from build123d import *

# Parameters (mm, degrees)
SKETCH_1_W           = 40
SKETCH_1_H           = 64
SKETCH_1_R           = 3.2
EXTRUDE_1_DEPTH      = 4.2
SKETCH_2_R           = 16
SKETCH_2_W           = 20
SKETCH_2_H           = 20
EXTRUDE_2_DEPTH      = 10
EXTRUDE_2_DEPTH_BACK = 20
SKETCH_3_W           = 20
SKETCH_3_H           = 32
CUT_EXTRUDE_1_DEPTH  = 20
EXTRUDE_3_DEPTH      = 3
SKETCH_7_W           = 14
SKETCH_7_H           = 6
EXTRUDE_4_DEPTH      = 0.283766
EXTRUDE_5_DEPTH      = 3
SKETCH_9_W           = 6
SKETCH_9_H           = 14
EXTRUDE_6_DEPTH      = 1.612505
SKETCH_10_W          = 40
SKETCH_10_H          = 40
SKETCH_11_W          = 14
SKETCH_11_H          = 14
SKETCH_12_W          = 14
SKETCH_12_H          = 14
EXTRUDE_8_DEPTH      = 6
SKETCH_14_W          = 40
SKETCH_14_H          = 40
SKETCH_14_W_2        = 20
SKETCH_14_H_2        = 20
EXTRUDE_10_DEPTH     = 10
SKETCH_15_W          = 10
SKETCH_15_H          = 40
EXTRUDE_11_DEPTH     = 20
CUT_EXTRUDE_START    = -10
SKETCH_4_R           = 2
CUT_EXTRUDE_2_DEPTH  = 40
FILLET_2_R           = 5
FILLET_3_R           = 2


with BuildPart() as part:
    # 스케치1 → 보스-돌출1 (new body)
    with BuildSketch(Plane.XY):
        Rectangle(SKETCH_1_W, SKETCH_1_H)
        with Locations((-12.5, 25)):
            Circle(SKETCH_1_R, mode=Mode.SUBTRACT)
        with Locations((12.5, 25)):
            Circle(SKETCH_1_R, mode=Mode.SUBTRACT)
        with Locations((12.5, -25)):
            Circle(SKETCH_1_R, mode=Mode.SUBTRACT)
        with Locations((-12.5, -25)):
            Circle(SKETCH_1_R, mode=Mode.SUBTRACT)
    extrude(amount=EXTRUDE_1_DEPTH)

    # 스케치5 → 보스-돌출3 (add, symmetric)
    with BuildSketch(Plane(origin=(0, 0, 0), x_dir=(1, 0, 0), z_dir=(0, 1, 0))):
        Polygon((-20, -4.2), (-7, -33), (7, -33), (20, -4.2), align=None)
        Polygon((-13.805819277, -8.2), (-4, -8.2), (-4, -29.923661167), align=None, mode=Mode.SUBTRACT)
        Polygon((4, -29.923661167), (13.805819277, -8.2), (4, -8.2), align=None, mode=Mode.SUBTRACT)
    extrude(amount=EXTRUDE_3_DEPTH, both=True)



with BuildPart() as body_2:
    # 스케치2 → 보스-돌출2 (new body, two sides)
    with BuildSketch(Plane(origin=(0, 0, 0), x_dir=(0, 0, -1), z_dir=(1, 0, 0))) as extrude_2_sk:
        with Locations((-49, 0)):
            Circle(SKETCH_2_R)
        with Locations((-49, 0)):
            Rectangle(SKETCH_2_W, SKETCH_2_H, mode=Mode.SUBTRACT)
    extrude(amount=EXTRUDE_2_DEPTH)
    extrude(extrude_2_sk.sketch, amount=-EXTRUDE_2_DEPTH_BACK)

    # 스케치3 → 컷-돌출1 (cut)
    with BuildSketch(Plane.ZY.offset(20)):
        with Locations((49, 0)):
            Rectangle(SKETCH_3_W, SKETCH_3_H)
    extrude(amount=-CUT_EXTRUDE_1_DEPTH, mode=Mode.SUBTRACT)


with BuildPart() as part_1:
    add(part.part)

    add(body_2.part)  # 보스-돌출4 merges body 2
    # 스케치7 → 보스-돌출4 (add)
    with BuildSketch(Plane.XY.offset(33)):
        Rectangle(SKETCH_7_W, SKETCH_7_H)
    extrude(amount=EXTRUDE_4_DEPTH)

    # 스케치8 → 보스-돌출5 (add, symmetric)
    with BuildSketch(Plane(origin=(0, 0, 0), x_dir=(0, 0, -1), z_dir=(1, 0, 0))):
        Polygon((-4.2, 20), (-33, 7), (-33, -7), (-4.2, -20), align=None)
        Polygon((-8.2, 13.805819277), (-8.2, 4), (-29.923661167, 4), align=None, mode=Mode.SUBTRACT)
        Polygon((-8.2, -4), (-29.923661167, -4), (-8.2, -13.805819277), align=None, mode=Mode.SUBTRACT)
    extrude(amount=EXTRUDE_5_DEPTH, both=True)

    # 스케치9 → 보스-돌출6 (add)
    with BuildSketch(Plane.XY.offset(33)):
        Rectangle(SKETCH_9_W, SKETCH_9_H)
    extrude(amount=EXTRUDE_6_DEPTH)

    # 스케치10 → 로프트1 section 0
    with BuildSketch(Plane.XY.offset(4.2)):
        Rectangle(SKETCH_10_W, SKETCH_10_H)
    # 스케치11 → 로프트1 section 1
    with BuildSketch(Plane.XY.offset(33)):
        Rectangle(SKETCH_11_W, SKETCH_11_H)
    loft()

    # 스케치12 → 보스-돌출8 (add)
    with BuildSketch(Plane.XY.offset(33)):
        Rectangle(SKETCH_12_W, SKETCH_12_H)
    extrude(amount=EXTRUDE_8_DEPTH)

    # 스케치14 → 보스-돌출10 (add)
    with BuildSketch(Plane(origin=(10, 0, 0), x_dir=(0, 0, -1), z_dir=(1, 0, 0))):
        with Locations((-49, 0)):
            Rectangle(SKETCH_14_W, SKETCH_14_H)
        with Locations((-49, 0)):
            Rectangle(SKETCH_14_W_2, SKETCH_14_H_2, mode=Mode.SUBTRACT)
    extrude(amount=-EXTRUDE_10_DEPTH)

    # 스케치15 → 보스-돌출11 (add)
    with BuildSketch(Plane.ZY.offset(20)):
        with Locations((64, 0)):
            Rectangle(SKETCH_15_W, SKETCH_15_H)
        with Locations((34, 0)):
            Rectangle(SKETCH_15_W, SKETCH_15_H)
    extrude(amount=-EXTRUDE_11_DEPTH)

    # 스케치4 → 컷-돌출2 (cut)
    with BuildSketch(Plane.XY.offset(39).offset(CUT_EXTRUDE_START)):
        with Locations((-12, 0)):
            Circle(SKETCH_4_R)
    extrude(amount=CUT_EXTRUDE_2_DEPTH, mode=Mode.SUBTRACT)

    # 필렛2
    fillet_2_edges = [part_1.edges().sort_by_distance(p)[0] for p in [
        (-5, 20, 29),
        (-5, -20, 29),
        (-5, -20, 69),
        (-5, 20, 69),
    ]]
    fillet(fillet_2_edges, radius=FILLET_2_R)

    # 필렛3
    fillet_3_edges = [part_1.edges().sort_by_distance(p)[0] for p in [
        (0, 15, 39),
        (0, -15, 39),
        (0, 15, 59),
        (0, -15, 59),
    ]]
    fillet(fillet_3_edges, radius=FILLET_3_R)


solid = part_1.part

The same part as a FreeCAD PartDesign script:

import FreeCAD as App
import Part
import Sketcher
from FreeCAD import Vector


def edges_at(feature, points):
    """Names of the edges that pass closest to the given points."""
    edges = feature.Shape.Edges
    near = lambda p: min(range(len(edges)), key=lambda i: edges[i].distToShape(Part.Vertex(*p))[0])
    return sorted({f"Edge{near(p) + 1}" for p in points})


def add_polygon(sketch, points):
    """Adds a closed chain of lines whose ends are joined by coincident constraints."""
    first, n = sketch.GeometryCount, len(points)
    for a, b in zip(points, points[1:] + points[:1]):
        sketch.addGeometry(Part.LineSegment(App.Vector(*a, 0), App.Vector(*b, 0)), False)
    for i in range(n):
        sketch.addConstraint(Sketcher.Constraint("Coincident", first + i, 2, first + (i + 1) % n, 1))

doc = App.newDocument("Part")
body = doc.addObject("PartDesign::Body", "Body")

# Sketch on XY plane
sketch1 = body.newObject("Sketcher::SketchObject", "Sketch")
sketch1.AttachmentSupport = (doc.getObject("XY_Plane"), [""])
sketch1.MapMode = "FlatFace"
add_polygon(sketch1, [(-20, 32), (-20, -32), (20, -32), (20, 32)])  # lines 0-3
sketch1.addGeometry(Part.Circle(Vector(-12.5, -25, 0), Vector(0, 0, 1), 3.2), False)  # 4
sketch1.addGeometry(Part.Circle(Vector(12.5, -25, 0), Vector(0, 0, 1), 3.2), False)  # 5
sketch1.addGeometry(Part.Circle(Vector(-12.5, 25, 0), Vector(0, 0, 1), 3.2), False)  # 6
sketch1.addGeometry(Part.Circle(Vector(12.5, 25, 0), Vector(0, 0, 1), 3.2), False)  # 7
sketch1.addConstraint([
    Sketcher.Constraint("Vertical", 0),
    Sketcher.Constraint("Horizontal", 1),
    Sketcher.Constraint("Vertical", 2),
    Sketcher.Constraint("Horizontal", 3),
    Sketcher.Constraint("Equal", 4, 5),
    Sketcher.Constraint("Equal", 5, 6),
    Sketcher.Constraint("Equal", 6, 7),
    Sketcher.Constraint("Symmetric", 5, 3, 6, 3, -1, 1),
    Sketcher.Constraint("Symmetric", 4, 3, 7, 3, -1, 1),
    Sketcher.Constraint("Symmetric", 0, 2, 2, 2, -1, 1),
    Sketcher.Constraint("Symmetric", 4, 3, 5, 3, -2),
    Sketcher.Constraint("Diameter", 4, 6.4),
    Sketcher.Constraint("DistanceX", 1, 1, 1, 2, 40.0),
    Sketcher.Constraint("DistanceY", 0, 2, 0, 1, 64.0),
    Sketcher.Constraint("DistanceY", 4, 3, -1, 1, 25.0),
    Sketcher.Constraint("DistanceX", 4, 3, 5, 3, 25.0),
])
pad1 = body.newObject("PartDesign::Pad", "Pad")
pad1.Profile = sketch1
pad1.Length = 4.2

# Sketch on XZ plane
sketch2 = body.newObject("Sketcher::SketchObject", "Sketch001")
sketch2.AttachmentSupport = (doc.getObject("XZ_Plane"), [""])
sketch2.MapMode = "FlatFace"
add_polygon(sketch2, [(-20, 4.2), (-7, 33), (7, 33), (20, 4.2)])  # lines 0-3
add_polygon(sketch2, [(-4, 29.923661), (-13.805819, 8.2), (-4, 8.2)])  # lines 4-6
add_polygon(sketch2, [(13.805819, 8.2), (4, 29.923661), (4, 8.2)])  # lines 7-9
sketch2.addConstraint([
    Sketcher.Constraint("Horizontal", 1),
    Sketcher.Constraint("Horizontal", 3),
    Sketcher.Constraint("Horizontal", 5),
    Sketcher.Constraint("Vertical", 6),
    Sketcher.Constraint("Vertical", 8),
    Sketcher.Constraint("Horizontal", 9),
    Sketcher.Constraint("Symmetric", 6, 2, 7, 2, -2),
    Sketcher.Constraint("Symmetric", 4, 2, 9, 2, -2),
    Sketcher.Constraint("Parallel", 0, 4),
    Sketcher.Constraint("Parallel", 2, 7),
    Sketcher.Constraint("DistanceX", 1, 1, 1, 2, 14.0),
    Sketcher.Constraint("DistanceX", 3, 2, 3, 1, 40.0),
    Sketcher.Constraint("DistanceX", 0, 2, -1, 1, 7.0),
    Sketcher.Constraint("DistanceY", -1, 1, 0, 2, 33.0),
    Sketcher.Constraint("DistanceX", 5, 2, -1, 1, 4.0),
    Sketcher.Constraint("DistanceY", 3, 2, 4, 2, 4.0),
    Sketcher.Constraint("DistanceY", -1, 1, 2, 2, 4.2),
    Sketcher.Constraint("DistanceX", 5, 1, 5, 2, 9.805819),
])
pad2 = body.newObject("PartDesign::Pad", "Pad001")
pad2.Profile = sketch2
pad2.Length = 6
pad2.Midplane = True
body2 = doc.addObject("PartDesign::Body", "Body001")

# Sketch on YZ plane
sketch3 = body2.newObject("Sketcher::SketchObject", "Sketch002")
sketch3.AttachmentSupport = (doc.getObject("YZ_Plane001"), [""])
sketch3.MapMode = "FlatFace"
sketch3.addGeometry(Part.Circle(Vector(0, 49, 0), Vector(0, 0, 1), 16), False)  # 0
add_polygon(sketch3, [(-10, 39), (-10, 59), (10, 59), (10, 39)])  # lines 1-4
sketch3.addConstraint([
    Sketcher.Constraint("Vertical", 1),
    Sketcher.Constraint("Horizontal", 2),
    Sketcher.Constraint("Vertical", 3),
    Sketcher.Constraint("Horizontal", 4),
    Sketcher.Constraint("PointOnObject", 0, 3, -2),
    Sketcher.Constraint("Equal", 4, 1),
    Sketcher.Constraint("Diameter", 0, 32.0),
    Sketcher.Constraint("DistanceX", 2, 1, 2, 2, 20.0),
    Sketcher.Constraint("DistanceY", -1, 1, 0, 3, 49.0),
    Sketcher.Constraint("DistanceX", 1, 2, -1, 1, 10.0),
    Sketcher.Constraint("DistanceY", -1, 1, 1, 2, 59.0),
])
pad3 = body2.newObject("PartDesign::Pad", "Pad002")
pad3.Profile = sketch3
pad3.Type = "TwoLengths"
pad3.Length = 10
pad3.Length2 = 20

# Sketch on YZ plane
sketch4 = body2.newObject("Sketcher::SketchObject", "Sketch003")
sketch4.AttachmentSupport = (doc.getObject("YZ_Plane001"), [""])
sketch4.MapMode = "FlatFace"
sketch4.AttachmentOffset = App.Placement(Vector(0, 0, -20), App.Rotation())
add_polygon(sketch4, [(16, 39), (-16, 39), (-16, 59), (16, 59)])  # lines 0-3
sketch4.addConstraint([
    Sketcher.Constraint("Horizontal", 0),
    Sketcher.Constraint("Vertical", 1),
    Sketcher.Constraint("Horizontal", 2),
    Sketcher.Constraint("Vertical", 3),
    Sketcher.Constraint("DistanceX", 0, 2, 0, 1, 32.0),
    Sketcher.Constraint("DistanceY", 1, 1, 1, 2, 20.0),
    Sketcher.Constraint("DistanceX", 0, 2, -1, 1, 16.0),
    Sketcher.Constraint("DistanceY", -1, 1, 0, 2, 39.0),
])
pocket1 = body2.newObject("PartDesign::Pocket", "Pocket")
pocket1.Profile = sketch4
pocket1.Length = 20
pocket1.Reversed = True
body.AllowCompound = True
doc.recompute()

boolean = body.newObject("PartDesign::Boolean", "Boolean")
boolean.Type = "Fuse"
boolean.addObjects([body2])

# Sketch on XY plane
sketch5 = body.newObject("Sketcher::SketchObject", "Sketch004")
sketch5.AttachmentSupport = (doc.getObject("XY_Plane"), [""])
sketch5.MapMode = "FlatFace"
sketch5.AttachmentOffset = App.Placement(Vector(0, 0, 33), App.Rotation())
add_polygon(sketch5, [(-7, 3), (-7, -3), (7, -3), (7, 3)])  # lines 0-3
sketch5.addConstraint([
    Sketcher.Constraint("Vertical", 0),
    Sketcher.Constraint("Horizontal", 1),
    Sketcher.Constraint("Vertical", 2),
    Sketcher.Constraint("Horizontal", 3),
    Sketcher.Constraint("Symmetric", 0, 2, 2, 2, -1, 1),
    Sketcher.Constraint("DistanceX", 1, 1, 1, 2, 14.0),
    Sketcher.Constraint("DistanceY", 0, 2, 0, 1, 6.0),
])
pad4 = body.newObject("PartDesign::Pad", "Pad003")
pad4.Profile = sketch5
pad4.Length = 0.283766

# Sketch on YZ plane
sketch6 = body.newObject("Sketcher::SketchObject", "Sketch005")
sketch6.AttachmentSupport = (doc.getObject("YZ_Plane"), [""])
sketch6.MapMode = "FlatFace"
add_polygon(sketch6, [(20, 4.2), (7, 33), (-7, 33), (-20, 4.2)])  # lines 0-3
add_polygon(sketch6, [(-4, 29.923661), (-4, 8.2), (-13.805819, 8.2)])  # lines 4-6
add_polygon(sketch6, [(4, 29.923661), (13.805819, 8.2), (4, 8.2)])  # lines 7-9
sketch6.addConstraint([
    Sketcher.Constraint("Horizontal", 1),
    Sketcher.Constraint("Horizontal", 3),
    Sketcher.Constraint("Vertical", 4),
    Sketcher.Constraint("Horizontal", 5),
    Sketcher.Constraint("Horizontal", 8),
    Sketcher.Constraint("Vertical", 9),
    Sketcher.Constraint("Symmetric", 5, 2, 7, 2, -2),
    Sketcher.Constraint("Symmetric", 6, 2, 9, 2, -2),
    Sketcher.Constraint("Parallel", 2, 6),
    Sketcher.Constraint("Parallel", 0, 7),
    Sketcher.Constraint("DistanceX", 1, 2, 1, 1, 14.0),
    Sketcher.Constraint("DistanceX", 3, 1, 3, 2, 40.0),
    Sketcher.Constraint("DistanceX", -1, 1, 0, 2, 7.0),
    Sketcher.Constraint("DistanceY", -1, 1, 0, 2, 33.0),
    Sketcher.Constraint("DistanceX", 4, 2, -1, 1, 4.0),
    Sketcher.Constraint("DistanceY", 2, 2, 4, 2, 4.0),
    Sketcher.Constraint("DistanceY", -1, 1, 2, 2, 4.2),
    Sketcher.Constraint("DistanceX", 5, 2, 5, 1, 9.805819),
])
pad5 = body.newObject("PartDesign::Pad", "Pad004")
pad5.Profile = sketch6
pad5.Length = 6
pad5.Midplane = True

# Sketch on XY plane
sketch7 = body.newObject("Sketcher::SketchObject", "Sketch006")
sketch7.AttachmentSupport = (doc.getObject("XY_Plane"), [""])
sketch7.MapMode = "FlatFace"
sketch7.AttachmentOffset = App.Placement(Vector(0, 0, 33), App.Rotation())
add_polygon(sketch7, [(-3, 7), (-3, -7), (3, -7), (3, 7)])  # lines 0-3
sketch7.addConstraint([
    Sketcher.Constraint("Vertical", 0),
    Sketcher.Constraint("Horizontal", 1),
    Sketcher.Constraint("Vertical", 2),
    Sketcher.Constraint("Horizontal", 3),
    Sketcher.Constraint("Symmetric", 0, 2, 2, 2, -1, 1),
    Sketcher.Constraint("DistanceX", 1, 1, 1, 2, 6.0),
    Sketcher.Constraint("DistanceY", 0, 2, 0, 1, 14.0),
])
pad6 = body.newObject("PartDesign::Pad", "Pad005")
pad6.Profile = sketch7
pad6.Length = 1.612505

# Sketch on XY plane
sketch8 = body.newObject("Sketcher::SketchObject", "Sketch007")
sketch8.AttachmentSupport = (doc.getObject("XY_Plane"), [""])
sketch8.MapMode = "FlatFace"
sketch8.AttachmentOffset = App.Placement(Vector(0, 0, 4.2), App.Rotation())
add_polygon(sketch8, [(-20, 20), (-20, -20), (20, -20), (20, 20)])  # lines 0-3
sketch8.addConstraint([
    Sketcher.Constraint("Vertical", 0),
    Sketcher.Constraint("Horizontal", 1),
    Sketcher.Constraint("Vertical", 2),
    Sketcher.Constraint("Horizontal", 3),
    Sketcher.Constraint("Symmetric", 0, 2, 2, 2, -1, 1),
    Sketcher.Constraint("Equal", 3, 0),
    Sketcher.Constraint("DistanceX", 1, 1, 1, 2, 40.0),
])

# Sketch on XY plane
sketch9 = body.newObject("Sketcher::SketchObject", "Sketch008")
sketch9.AttachmentSupport = (doc.getObject("XY_Plane"), [""])
sketch9.MapMode = "FlatFace"
sketch9.AttachmentOffset = App.Placement(Vector(0, 0, 33), App.Rotation())
add_polygon(sketch9, [(-7, 7), (-7, -7), (7, -7), (7, 7)])  # lines 0-3
sketch9.addConstraint([
    Sketcher.Constraint("Vertical", 0),
    Sketcher.Constraint("Horizontal", 1),
    Sketcher.Constraint("Vertical", 2),
    Sketcher.Constraint("Horizontal", 3),
    Sketcher.Constraint("Symmetric", 0, 2, 2, 2, -1, 1),
    Sketcher.Constraint("Equal", 3, 0),
    Sketcher.Constraint("DistanceX", 1, 1, 1, 2, 14.0),
])

additiveloft = body.newObject("PartDesign::AdditiveLoft", "AdditiveLoft")
additiveloft.Profile = sketch8
additiveloft.Sections = [sketch9]

# Sketch on XY plane
sketch10 = body.newObject("Sketcher::SketchObject", "Sketch009")
sketch10.AttachmentSupport = (doc.getObject("XY_Plane"), [""])
sketch10.MapMode = "FlatFace"
sketch10.AttachmentOffset = App.Placement(Vector(0, 0, 33), App.Rotation())
add_polygon(sketch10, [(-7, 7), (-7, -7), (7, -7), (7, 7)])  # lines 0-3
sketch10.addConstraint([
    Sketcher.Constraint("Vertical", 0),
    Sketcher.Constraint("Horizontal", 1),
    Sketcher.Constraint("Vertical", 2),
    Sketcher.Constraint("Horizontal", 3),
    Sketcher.Constraint("Symmetric", 0, 2, 2, 2, -1, 1),
    Sketcher.Constraint("Equal", 3, 0),
    Sketcher.Constraint("DistanceX", 1, 1, 1, 2, 14.0),
])
pad7 = body.newObject("PartDesign::Pad", "Pad006")
pad7.Profile = sketch10
pad7.Length = 6

# Sketch on YZ plane
sketch11 = body.newObject("Sketcher::SketchObject", "Sketch010")
sketch11.AttachmentSupport = (doc.getObject("YZ_Plane"), [""])
sketch11.MapMode = "FlatFace"
sketch11.AttachmentOffset = App.Placement(Vector(0, 0, 10), App.Rotation())
add_polygon(sketch11, [(20, 69), (-20, 69), (-20, 29), (20, 29)])  # lines 0-3
add_polygon(sketch11, [(-10, 39), (-10, 59), (10, 59), (10, 39)])  # lines 4-7
sketch11.addConstraint([
    Sketcher.Constraint("Horizontal", 0),
    Sketcher.Constraint("Vertical", 1),
    Sketcher.Constraint("Horizontal", 2),
    Sketcher.Constraint("Vertical", 3),
    Sketcher.Constraint("Vertical", 4),
    Sketcher.Constraint("Horizontal", 5),
    Sketcher.Constraint("Vertical", 6),
    Sketcher.Constraint("Horizontal", 7),
    Sketcher.Constraint("Equal", 2, 1),
    Sketcher.Constraint("Equal", 7, 4),
    Sketcher.Constraint("DistanceX", 0, 2, 0, 1, 40.0),
    Sketcher.Constraint("DistanceX", 5, 1, 5, 2, 20.0),
    Sketcher.Constraint("DistanceX", 0, 2, -1, 1, 20.0),
    Sketcher.Constraint("DistanceY", -1, 1, 0, 2, 69.0),
    Sketcher.Constraint("DistanceX", 4, 2, -1, 1, 10.0),
    Sketcher.Constraint("DistanceY", -1, 1, 4, 2, 59.0),
])
pad8 = body.newObject("PartDesign::Pad", "Pad007")
pad8.Profile = sketch11
pad8.Length = 10
pad8.Reversed = True

# Sketch on YZ plane
sketch12 = body.newObject("Sketcher::SketchObject", "Sketch011")
sketch12.AttachmentSupport = (doc.getObject("YZ_Plane"), [""])
sketch12.MapMode = "FlatFace"
sketch12.AttachmentOffset = App.Placement(Vector(0, 0, -20), App.Rotation())
add_polygon(sketch12, [(20, 59), (-20, 59), (-20, 69), (20, 69)])  # lines 0-3
add_polygon(sketch12, [(20, 29), (-20, 29), (-20, 39), (20, 39)])  # lines 4-7
sketch12.addConstraint([
    Sketcher.Constraint("Horizontal", 0),
    Sketcher.Constraint("Vertical", 1),
    Sketcher.Constraint("Horizontal", 2),
    Sketcher.Constraint("Vertical", 3),
    Sketcher.Constraint("Horizontal", 4),
    Sketcher.Constraint("Vertical", 5),
    Sketcher.Constraint("Horizontal", 6),
    Sketcher.Constraint("Vertical", 7),
    Sketcher.Constraint("Vertical", 1, 2, 4, 2),
    Sketcher.Constraint("Vertical", 3, 2, 6, 2),
    Sketcher.Constraint("Equal", 3, 5),
    Sketcher.Constraint("DistanceX", 0, 2, 0, 1, 40.0),
    Sketcher.Constraint("DistanceY", 1, 1, 1, 2, 10.0),
    Sketcher.Constraint("DistanceX", 0, 2, -1, 1, 20.0),
    Sketcher.Constraint("DistanceY", -1, 1, 0, 2, 59.0),
    Sketcher.Constraint("DistanceY", -1, 1, 4, 2, 29.0),
])
pad9 = body.newObject("PartDesign::Pad", "Pad008")
pad9.Profile = sketch12
pad9.Length = 20

# Sketch on XY plane
sketch13 = body.newObject("Sketcher::SketchObject", "Sketch012")
sketch13.AttachmentSupport = (doc.getObject("XY_Plane"), [""])
sketch13.MapMode = "FlatFace"
sketch13.AttachmentOffset = App.Placement(Vector(0, 0, 29), App.Rotation())
sketch13.addGeometry(Part.Circle(Vector(-12, 0, 0), Vector(0, 0, 1), 2), False)
sketch13.addConstraint([
    Sketcher.Constraint("PointOnObject", 0, 3, -1),
    Sketcher.Constraint("Diameter", 0, 4.0),
    Sketcher.Constraint("DistanceX", 0, 3, -1, 1, 12.0),
])
pocket2 = body.newObject("PartDesign::Pocket", "Pocket001")
pocket2.Profile = sketch13
pocket2.Length = 40
pocket2.Reversed = True
doc.recompute()

fillet = body.newObject("PartDesign::Fillet", "Fillet")
fillet.Base = (pocket2, edges_at(pocket2, [
    (-5, 20, 29),
    (-5, -20, 29),
    (-5, -20, 69),
    (-5, 20, 69),
]))
fillet.Radius = 5
doc.recompute()

fillet2 = body.newObject("PartDesign::Fillet", "Fillet001")
fillet2.Base = (fillet, edges_at(fillet, [
    (0, 15, 39),
    (0, -15, 39),
    (0, 15, 59),
    (0, -15, 59),
]))
fillet2.Radius = 2

doc.recompute()
